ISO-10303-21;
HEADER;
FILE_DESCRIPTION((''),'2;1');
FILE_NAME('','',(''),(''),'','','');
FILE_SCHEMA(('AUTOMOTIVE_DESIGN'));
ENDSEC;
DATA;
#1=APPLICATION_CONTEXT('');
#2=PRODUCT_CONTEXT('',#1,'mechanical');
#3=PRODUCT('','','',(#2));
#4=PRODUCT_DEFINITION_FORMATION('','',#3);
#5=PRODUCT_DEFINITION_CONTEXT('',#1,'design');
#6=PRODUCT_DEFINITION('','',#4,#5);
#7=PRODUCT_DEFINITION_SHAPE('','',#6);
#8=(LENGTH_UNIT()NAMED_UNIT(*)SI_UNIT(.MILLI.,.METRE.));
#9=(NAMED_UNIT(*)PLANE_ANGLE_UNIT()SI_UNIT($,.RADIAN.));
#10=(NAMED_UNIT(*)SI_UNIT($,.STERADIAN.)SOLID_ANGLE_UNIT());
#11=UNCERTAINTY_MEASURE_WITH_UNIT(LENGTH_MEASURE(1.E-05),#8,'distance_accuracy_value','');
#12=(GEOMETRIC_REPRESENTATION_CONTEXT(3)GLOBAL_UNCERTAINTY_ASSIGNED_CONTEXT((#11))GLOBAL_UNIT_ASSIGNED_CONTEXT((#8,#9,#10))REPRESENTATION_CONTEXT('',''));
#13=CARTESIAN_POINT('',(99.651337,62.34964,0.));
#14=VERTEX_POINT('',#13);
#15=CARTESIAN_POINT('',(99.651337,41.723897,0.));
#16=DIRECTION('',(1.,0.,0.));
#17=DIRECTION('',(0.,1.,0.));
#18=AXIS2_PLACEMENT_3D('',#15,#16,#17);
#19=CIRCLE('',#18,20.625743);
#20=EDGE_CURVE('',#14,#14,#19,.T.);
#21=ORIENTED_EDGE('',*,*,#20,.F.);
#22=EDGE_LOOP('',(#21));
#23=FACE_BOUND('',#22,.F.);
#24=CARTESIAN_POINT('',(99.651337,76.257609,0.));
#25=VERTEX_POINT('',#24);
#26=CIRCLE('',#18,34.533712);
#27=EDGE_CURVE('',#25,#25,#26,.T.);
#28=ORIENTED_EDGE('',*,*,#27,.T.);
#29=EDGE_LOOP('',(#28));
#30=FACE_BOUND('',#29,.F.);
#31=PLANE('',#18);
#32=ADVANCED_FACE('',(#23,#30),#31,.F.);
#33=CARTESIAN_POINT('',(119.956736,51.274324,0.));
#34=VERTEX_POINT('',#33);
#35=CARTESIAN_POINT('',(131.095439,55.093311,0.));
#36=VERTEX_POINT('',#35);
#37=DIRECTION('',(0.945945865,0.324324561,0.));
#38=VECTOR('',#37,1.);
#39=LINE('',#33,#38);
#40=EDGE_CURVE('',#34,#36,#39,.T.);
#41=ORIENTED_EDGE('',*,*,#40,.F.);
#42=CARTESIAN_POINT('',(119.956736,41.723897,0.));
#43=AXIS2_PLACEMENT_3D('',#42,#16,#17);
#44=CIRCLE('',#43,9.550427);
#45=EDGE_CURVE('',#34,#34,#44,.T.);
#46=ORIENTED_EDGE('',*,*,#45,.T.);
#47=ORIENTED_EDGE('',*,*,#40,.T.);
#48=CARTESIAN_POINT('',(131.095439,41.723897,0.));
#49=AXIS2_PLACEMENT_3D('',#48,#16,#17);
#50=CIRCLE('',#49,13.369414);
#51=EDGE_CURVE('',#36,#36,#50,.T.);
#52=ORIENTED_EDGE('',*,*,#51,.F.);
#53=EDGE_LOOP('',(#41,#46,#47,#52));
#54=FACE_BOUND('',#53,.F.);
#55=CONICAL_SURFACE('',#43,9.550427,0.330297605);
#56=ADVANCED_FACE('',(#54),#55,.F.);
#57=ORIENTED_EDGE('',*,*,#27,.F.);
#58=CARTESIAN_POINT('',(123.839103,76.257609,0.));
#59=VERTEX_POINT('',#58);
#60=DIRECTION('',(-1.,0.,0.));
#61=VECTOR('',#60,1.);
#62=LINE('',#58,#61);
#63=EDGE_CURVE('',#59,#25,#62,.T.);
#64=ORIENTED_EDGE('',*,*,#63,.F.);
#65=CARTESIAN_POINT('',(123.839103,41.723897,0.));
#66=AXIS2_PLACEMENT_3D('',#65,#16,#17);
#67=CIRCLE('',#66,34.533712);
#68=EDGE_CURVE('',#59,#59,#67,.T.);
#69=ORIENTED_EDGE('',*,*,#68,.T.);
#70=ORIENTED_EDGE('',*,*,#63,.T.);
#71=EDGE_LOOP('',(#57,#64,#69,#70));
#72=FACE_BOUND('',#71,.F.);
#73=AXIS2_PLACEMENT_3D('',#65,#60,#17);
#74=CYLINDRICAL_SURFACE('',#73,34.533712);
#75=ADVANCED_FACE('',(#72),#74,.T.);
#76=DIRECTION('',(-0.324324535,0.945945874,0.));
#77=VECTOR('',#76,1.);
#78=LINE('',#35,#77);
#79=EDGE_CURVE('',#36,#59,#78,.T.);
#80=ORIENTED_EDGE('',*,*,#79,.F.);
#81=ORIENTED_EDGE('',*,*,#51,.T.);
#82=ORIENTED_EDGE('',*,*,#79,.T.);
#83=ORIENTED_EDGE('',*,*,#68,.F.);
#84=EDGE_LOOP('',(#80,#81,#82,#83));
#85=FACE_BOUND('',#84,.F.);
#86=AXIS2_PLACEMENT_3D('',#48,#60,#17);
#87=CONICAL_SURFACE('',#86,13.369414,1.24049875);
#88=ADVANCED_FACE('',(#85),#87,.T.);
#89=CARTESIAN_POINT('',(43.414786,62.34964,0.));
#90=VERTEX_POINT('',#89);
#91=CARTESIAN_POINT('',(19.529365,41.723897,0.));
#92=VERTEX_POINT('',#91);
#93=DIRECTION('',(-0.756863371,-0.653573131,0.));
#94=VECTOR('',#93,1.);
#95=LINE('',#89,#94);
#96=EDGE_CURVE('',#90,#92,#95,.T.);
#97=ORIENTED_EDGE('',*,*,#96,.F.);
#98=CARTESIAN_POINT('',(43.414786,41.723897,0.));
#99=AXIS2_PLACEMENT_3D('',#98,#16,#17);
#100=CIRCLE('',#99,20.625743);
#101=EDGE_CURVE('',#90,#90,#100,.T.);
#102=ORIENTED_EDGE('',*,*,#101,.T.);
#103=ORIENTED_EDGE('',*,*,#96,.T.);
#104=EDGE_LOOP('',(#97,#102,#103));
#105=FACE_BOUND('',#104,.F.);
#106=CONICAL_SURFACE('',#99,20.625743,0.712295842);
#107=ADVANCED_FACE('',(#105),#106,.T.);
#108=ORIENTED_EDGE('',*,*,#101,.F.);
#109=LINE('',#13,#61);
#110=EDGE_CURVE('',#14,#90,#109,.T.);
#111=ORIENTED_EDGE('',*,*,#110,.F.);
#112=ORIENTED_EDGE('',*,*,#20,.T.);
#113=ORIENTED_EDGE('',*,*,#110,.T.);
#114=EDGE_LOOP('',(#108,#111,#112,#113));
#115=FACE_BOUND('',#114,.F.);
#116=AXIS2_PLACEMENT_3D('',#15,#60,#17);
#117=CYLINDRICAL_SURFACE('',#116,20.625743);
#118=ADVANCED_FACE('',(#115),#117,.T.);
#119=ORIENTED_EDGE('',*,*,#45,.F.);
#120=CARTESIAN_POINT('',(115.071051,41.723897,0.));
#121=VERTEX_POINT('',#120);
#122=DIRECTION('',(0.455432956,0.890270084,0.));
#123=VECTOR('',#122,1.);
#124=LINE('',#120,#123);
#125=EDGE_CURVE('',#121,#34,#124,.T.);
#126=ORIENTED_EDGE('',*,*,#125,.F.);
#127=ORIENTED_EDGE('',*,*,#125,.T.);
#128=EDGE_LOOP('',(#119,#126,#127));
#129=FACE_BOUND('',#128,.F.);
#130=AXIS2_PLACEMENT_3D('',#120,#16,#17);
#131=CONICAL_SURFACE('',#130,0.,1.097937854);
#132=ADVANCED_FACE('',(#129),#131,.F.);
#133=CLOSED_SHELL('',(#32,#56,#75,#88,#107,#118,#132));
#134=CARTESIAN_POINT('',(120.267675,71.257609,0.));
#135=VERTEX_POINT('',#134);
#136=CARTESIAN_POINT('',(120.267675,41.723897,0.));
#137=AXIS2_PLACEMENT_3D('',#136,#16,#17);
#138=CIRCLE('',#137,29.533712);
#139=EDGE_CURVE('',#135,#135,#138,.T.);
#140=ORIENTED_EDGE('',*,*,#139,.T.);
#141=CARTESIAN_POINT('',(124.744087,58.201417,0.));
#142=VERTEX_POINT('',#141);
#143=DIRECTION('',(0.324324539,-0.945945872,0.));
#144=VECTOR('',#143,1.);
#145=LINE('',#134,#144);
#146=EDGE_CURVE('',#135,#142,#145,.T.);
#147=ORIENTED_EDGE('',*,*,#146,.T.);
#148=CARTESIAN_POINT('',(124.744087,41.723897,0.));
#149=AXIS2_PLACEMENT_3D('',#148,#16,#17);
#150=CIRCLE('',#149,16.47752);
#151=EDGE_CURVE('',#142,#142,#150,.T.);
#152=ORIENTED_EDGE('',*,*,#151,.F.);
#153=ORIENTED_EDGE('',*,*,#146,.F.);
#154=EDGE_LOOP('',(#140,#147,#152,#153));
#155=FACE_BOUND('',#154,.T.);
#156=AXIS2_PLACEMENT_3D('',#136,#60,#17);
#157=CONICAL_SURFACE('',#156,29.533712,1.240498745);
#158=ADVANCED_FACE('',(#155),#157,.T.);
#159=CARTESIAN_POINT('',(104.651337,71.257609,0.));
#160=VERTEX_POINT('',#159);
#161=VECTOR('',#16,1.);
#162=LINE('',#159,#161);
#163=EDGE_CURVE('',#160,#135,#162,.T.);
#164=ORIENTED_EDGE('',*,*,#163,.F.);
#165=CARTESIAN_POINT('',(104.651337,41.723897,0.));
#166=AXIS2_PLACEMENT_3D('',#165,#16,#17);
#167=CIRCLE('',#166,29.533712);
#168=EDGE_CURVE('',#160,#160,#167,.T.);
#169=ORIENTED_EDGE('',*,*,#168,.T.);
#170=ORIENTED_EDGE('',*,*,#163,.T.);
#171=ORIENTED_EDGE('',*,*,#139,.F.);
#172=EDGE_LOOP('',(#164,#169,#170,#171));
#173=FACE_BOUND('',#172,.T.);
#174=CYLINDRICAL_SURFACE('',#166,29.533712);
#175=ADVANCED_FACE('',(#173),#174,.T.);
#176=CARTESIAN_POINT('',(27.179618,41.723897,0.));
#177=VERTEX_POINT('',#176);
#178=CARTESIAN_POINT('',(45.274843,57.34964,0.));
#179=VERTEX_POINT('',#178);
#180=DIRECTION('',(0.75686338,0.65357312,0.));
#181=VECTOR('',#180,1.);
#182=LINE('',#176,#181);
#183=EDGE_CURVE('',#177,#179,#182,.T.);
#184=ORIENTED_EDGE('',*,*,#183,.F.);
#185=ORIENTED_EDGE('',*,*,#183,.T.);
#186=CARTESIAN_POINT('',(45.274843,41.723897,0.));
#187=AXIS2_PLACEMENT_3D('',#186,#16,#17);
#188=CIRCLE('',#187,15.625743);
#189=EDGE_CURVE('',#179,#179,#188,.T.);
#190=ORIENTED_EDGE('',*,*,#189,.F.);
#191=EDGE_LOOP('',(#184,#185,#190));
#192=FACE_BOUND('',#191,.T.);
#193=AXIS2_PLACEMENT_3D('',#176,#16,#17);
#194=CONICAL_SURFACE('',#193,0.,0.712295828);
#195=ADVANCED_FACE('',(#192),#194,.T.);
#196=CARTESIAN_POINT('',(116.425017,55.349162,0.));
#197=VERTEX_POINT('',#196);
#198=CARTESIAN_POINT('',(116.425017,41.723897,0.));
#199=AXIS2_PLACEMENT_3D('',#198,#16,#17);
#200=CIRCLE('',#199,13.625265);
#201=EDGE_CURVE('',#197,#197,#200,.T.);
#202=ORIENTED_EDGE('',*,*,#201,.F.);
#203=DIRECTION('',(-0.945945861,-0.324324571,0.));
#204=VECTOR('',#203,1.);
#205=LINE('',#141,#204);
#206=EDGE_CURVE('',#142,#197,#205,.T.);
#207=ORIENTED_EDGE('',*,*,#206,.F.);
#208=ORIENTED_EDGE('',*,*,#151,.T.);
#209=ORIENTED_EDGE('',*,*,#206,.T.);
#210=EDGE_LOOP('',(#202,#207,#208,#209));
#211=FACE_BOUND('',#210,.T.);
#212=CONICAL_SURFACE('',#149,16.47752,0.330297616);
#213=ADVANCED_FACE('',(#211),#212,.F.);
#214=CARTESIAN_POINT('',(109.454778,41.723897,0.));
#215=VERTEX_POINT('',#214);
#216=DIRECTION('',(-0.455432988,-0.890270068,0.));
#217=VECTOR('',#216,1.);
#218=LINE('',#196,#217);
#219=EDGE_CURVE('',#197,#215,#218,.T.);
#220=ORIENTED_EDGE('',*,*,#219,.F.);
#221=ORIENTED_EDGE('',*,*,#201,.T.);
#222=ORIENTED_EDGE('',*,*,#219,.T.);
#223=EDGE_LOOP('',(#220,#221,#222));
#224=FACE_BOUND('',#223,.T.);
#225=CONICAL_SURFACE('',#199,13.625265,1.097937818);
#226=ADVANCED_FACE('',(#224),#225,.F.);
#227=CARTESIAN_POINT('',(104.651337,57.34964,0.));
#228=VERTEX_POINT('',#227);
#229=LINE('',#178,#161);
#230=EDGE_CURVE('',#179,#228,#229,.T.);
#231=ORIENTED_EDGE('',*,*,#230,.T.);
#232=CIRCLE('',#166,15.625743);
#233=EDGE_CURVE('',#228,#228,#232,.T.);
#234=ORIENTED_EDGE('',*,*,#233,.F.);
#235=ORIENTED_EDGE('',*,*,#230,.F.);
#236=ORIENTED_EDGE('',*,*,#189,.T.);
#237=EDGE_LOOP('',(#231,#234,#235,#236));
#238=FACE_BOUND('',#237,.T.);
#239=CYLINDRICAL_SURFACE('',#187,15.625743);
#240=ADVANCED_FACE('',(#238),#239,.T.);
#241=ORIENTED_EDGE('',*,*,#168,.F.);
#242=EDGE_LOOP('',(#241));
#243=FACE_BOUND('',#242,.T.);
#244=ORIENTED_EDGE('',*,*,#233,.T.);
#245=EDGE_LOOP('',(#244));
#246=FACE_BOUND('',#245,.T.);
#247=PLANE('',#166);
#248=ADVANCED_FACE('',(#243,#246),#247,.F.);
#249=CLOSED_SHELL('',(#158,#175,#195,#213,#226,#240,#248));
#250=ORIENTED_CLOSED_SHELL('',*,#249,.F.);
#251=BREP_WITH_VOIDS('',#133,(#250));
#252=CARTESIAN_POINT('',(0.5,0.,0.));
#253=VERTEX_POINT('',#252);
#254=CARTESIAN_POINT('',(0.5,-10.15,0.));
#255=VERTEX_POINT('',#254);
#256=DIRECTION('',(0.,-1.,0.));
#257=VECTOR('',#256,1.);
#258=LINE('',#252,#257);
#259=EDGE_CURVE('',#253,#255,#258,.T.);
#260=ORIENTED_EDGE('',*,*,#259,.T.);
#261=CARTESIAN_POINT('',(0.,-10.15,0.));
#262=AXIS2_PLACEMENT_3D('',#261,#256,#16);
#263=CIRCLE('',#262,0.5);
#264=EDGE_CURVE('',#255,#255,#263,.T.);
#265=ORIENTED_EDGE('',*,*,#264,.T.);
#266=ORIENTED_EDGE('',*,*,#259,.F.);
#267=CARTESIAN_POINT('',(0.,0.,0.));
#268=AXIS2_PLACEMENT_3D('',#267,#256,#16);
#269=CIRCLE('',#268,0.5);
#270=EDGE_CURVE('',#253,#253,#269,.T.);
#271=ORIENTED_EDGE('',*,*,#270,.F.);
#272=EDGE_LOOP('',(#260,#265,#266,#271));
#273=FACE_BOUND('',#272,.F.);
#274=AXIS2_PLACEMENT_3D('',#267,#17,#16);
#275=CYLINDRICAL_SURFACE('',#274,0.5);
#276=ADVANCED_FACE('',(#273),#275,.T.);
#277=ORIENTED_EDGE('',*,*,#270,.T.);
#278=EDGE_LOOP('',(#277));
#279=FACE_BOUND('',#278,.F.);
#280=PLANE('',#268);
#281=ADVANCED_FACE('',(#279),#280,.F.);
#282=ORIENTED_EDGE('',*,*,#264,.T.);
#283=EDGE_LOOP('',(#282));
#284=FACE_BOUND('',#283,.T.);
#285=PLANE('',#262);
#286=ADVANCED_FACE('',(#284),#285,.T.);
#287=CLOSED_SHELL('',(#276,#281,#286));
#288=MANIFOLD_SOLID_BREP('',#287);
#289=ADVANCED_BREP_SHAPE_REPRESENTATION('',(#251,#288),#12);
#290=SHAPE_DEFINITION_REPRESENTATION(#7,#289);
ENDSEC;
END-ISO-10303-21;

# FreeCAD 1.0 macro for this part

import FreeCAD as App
import Part
import Sketcher


def add_polygon(sketch, points):
    """Adds a closed chain of lines whose ends are joined by coincident constraints."""
    first, n = sketch.GeometryCount, len(points)
    for a, b in zip(points, points[1:] + points[:1]):
        sketch.addGeometry(Part.LineSegment(App.Vector(*a, 0), App.Vector(*b, 0)), False)
    for i in range(n):
        sketch.addConstraint(Sketcher.Constraint("Coincident", first + i, 2, first + (i + 1) % n, 1))

doc = App.newDocument("Part")
body = doc.addObject("PartDesign::Body", "Body")

sketch1 = body.newObject("Sketcher::SketchObject", "Sketch")
sketch1.AttachmentSupport = (doc.getObject("XY_Plane"), [""])
sketch1.MapMode = "FlatFace"
add_polygon(sketch1, [(43, 62), (20, 42), (27, 42), (45, 57), (105, 57), (105, 71), (120, 71), (125, 58), (116, 55), (109, 42), (115, 42), (120, 51), (131, 55), (124, 76), (100, 76), (100, 62)])
sketch1.addGeometry(Part.LineSegment(App.Vector(20, 42, 0), App.Vector(131, 42, 0)), True)
sketch1.addConstraint([
    Sketcher.Constraint("Horizontal", 1),
    Sketcher.Constraint("Horizontal", 3),
    Sketcher.Constraint("Vertical", 4),
    Sketcher.Constraint("Horizontal", 5),
    Sketcher.Constraint("Horizontal", 9),
    Sketcher.Constraint("Horizontal", 13),
    Sketcher.Constraint("Vertical", 14),
    Sketcher.Constraint("Horizontal", 15),
    Sketcher.Constraint("Horizontal", 16),
    Sketcher.Constraint("Coincident", 16, 1, 0, 2),
    Sketcher.Constraint("Parallel", 0, 2),
    Sketcher.Constraint("Perpendicular", 6, 7),
    Sketcher.Constraint("Parallel", 8, 10),
    Sketcher.Constraint("Parallel", 7, 11),
    Sketcher.Constraint("Perpendicular", 11, 12),
    Sketcher.Constraint("Horizontal", 1, 2, 8, 2),
    Sketcher.Constraint("Vertical", 11, 2, 16, 2),
    Sketcher.Constraint("Equal", 4, 14),
    Sketcher.Constraint("DistanceY", 5, 2, 12, 2, 5.0),
    Sketcher.Constraint("DistanceX", 13, 2, 4, 2, 5.0),
    Sketcher.Constraint("Distance", 11, 11.775201),
    Sketcher.Constraint("DistanceX", 15, 2, 15, 1, 56.236551),
    Sketcher.Constraint("DistanceY", 4, 1, 4, 2, 13.907969),
    Sketcher.Constraint("DistanceX", 3, 2, 10, 2, 15.305399),
    Sketcher.Constraint("DistanceY", 11, 2, 5, 2, 16.164298),
    Sketcher.Constraint("Distance", 0, 31.558432),
    Sketcher.Constraint("Distance", 2, 23.908179),
    Sketcher.Constraint("Distance", 6, 13.802261),
    Sketcher.Constraint("Distance", 10, 10.727561),
    Sketcher.Constraint("Distance", 12, 22.373688),
    Sketcher.Constraint("DistanceX", 1, 1, 1, 2, 7.650253),
    Sketcher.Constraint("DistanceX", 5, 1, 5, 2, 15.616338),
    Sketcher.Constraint("DistanceX", 9, 1, 9, 2, 5.616273),
    Sketcher.Constraint("DistanceX", -1, 1, 1, 2, 27.179618),
    Sketcher.Constraint("DistanceY", -1, 1, 2, 2, 57.34964),
])
revolution = body.newObject("PartDesign::Revolution", "Revolution")
revolution.Profile = sketch1
revolution.ReferenceAxis = (sketch1, ["Axis0"])
revolution.Angle = 360
body2 = doc.addObject("PartDesign::Body", "Body001")

sketch2 = body2.newObject("Sketcher::SketchObject", "Sketch001")
sketch2.AttachmentSupport = (doc.getObject("XZ_Plane001"), [""])
sketch2.MapMode = "FlatFace"
sketch2.addGeometry(Part.Circle(App.Vector(0, 0, 0), App.Vector(0, 0, 1), 0.5), False)
sketch2.addConstraint([
    Sketcher.Constraint("Coincident", 0, 3, -1, 1),
    Sketcher.Constraint("Diameter", 0, 1.0),
])
pad1 = body2.newObject("PartDesign::Pad", "Pad")
pad1.Profile = sketch2
pad1.Length = 10.15

doc.recompute()
